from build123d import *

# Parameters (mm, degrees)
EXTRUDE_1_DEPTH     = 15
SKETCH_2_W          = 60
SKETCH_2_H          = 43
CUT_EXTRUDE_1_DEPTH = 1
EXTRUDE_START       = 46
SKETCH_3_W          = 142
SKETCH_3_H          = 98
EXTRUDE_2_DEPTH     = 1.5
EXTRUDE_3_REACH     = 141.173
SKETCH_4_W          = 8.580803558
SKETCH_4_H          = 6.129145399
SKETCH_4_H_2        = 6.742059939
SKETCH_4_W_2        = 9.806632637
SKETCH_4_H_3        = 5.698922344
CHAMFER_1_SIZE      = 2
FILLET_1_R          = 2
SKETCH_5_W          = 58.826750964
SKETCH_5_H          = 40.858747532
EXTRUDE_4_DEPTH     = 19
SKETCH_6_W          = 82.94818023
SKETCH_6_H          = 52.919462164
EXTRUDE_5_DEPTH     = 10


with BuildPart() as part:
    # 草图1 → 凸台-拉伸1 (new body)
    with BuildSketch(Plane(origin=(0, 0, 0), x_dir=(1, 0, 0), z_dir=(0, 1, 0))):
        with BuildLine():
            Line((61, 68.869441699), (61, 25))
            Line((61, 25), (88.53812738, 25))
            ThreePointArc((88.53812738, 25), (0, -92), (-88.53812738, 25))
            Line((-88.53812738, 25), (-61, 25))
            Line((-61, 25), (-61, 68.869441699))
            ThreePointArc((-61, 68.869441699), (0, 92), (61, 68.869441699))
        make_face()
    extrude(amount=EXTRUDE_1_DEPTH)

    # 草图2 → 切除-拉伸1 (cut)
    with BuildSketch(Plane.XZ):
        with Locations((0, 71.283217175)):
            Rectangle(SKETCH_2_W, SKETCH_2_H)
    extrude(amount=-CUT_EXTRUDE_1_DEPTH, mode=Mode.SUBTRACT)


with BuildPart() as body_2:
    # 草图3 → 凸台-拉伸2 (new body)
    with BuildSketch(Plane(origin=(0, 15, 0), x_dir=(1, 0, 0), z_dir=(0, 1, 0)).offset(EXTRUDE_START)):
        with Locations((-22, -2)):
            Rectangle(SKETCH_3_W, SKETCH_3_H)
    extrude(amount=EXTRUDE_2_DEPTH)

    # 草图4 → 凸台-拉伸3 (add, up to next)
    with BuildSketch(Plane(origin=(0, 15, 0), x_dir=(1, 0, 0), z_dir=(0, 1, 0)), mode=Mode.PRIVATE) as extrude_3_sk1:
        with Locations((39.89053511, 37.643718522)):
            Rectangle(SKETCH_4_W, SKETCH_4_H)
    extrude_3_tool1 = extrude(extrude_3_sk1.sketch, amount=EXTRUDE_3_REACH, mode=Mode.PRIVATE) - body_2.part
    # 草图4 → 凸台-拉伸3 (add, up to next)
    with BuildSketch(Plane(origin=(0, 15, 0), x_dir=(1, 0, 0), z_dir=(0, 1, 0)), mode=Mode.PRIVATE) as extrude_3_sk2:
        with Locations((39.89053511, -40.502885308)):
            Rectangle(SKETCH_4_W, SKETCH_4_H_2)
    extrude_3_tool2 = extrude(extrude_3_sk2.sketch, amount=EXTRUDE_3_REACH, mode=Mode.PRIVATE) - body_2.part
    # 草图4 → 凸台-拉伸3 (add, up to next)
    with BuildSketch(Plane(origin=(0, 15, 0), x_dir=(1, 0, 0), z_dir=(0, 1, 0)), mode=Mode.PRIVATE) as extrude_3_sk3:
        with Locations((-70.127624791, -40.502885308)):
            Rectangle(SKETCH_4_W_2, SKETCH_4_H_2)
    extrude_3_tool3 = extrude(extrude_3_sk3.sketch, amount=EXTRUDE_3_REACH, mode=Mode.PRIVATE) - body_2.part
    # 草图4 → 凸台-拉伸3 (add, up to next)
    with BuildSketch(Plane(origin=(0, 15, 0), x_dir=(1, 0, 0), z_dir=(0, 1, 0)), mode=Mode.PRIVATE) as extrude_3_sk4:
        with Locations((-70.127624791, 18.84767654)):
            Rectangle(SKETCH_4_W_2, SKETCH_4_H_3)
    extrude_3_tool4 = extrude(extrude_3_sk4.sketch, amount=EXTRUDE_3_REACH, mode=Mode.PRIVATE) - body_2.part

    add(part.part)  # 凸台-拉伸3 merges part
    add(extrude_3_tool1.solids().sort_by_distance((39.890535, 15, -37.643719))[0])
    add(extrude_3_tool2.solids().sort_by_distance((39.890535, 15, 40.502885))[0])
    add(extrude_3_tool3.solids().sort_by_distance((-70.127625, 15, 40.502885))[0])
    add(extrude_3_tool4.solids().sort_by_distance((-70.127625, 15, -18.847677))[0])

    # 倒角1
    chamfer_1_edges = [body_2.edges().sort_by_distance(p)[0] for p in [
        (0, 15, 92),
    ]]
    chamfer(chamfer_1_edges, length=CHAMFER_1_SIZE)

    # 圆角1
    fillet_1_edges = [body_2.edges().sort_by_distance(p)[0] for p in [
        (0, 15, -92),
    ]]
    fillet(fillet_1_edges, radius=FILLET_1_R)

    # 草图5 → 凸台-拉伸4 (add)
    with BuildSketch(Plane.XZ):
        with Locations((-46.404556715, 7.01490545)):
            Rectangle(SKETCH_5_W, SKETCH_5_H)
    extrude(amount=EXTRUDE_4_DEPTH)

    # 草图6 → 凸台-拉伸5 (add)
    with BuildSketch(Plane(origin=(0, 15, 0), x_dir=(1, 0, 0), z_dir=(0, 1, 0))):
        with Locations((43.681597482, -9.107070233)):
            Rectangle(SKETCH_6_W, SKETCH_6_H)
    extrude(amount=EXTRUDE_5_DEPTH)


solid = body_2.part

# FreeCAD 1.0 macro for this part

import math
import FreeCAD as App
import Part
import Sketcher
from FreeCAD import Vector
Q = App.Units.Quantity


def edges_at(feature, points):
    """Names of the edges that pass closest to the given points."""
    edges = feature.Shape.Edges
    near = lambda p: min(range(len(edges)), key=lambda i: edges[i].distToShape(Part.Vertex(*p))[0])
    return sorted({f"Edge{near(p) + 1}" for p in points})

doc = App.newDocument("Part")
params = doc.addObject("Spreadsheet::Sheet", "Params")
for row, (alias, value) in enumerate([
    ("sketch1_radius", "92 mm"),
    ("pad1_length", "15 mm"),
    ("sketch2_width", "60 mm"),
    ("sketch2_height", "43 mm"),
    ("pocket1_length", "1 mm"),
    ("sketch3_width", "142 mm"),
    ("sketch3_height", "98 mm"),
    ("pad2_length", "1.5 mm"),
    ("chamfer_size", "2 mm"),
    ("fillet_radius", "2 mm"),
    ("pad7_length", "19 mm"),
    ("pad8_length", "10 mm"),
], start=1):
    params.set(f"A{row}", alias)
    params.set(f"B{row}", "=" + value)
    params.setAlias(f"B{row}", alias)

body = doc.addObject("PartDesign::Body", "Body")

# Sketch on XZ plane
sketch1 = doc.addObject("Sketcher::SketchObject", "Sketch")
body.addObject(sketch1)
sketch1.AttachmentSupport = (doc.XZ_Plane, [""])
sketch1.MapMode = "FlatFace"
sketch1.addGeometry([
    Part.LineSegment(Vector(61, -25, 0), Vector(61, -69, 0)),  # 0
    Part.ArcOfCircle(Part.Circle(Vector(0, 0, 0), Vector(0, 0, 1), 92), math.radians(-132), math.radians(-48)),  # 1
    Part.LineSegment(Vector(-61, -69, 0), Vector(-61, -25, 0)),  # 2
    Part.LineSegment(Vector(-61, -25, 0), Vector(-89, -25, 0)),  # 3
    Part.ArcOfCircle(Part.Circle(Vector(0, 0, 0), Vector(0, 0, 1), 92), math.radians(-16), math.radians(196)),  # 4
    Part.LineSegment(Vector(89, -25, 0), Vector(61, -25, 0)),  # 5
], False)
sketch1.addConstraint([
    Sketcher.Constraint("Coincident", 0, 2, 1, 2),
    Sketcher.Constraint("Coincident", 1, 1, 2, 1),
    Sketcher.Constraint("Coincident", 2, 2, 3, 1),
    Sketcher.Constraint("Coincident", 3, 2, 4, 2),
    Sketcher.Constraint("Coincident", 4, 1, 5, 1),
    Sketcher.Constraint("Coincident", 5, 2, 0, 1),
    Sketcher.Constraint("Vertical", 0),
    Sketcher.Constraint("Vertical", 2),
    Sketcher.Constraint("Horizontal", 3),
    Sketcher.Constraint("Horizontal", 5),
    Sketcher.Constraint("Coincident", 1, 3, -1, 1),
    Sketcher.Constraint("Coincident", 4, 3, -1, 1),
    Sketcher.Constraint("Equal", 1, 4),
    Sketcher.Constraint("Symmetric", 2, 2, 5, 2, -2),
    Sketcher.Constraint("Radius", 1, Q("92 mm")),
    Sketcher.Constraint("DistanceX", -1, 1, 0, 2, Q("61 mm")),
    Sketcher.Constraint("DistanceY", 2, 2, -1, 1, Q("25 mm")),
])
sketch1.setExpression("Constraints[14]", "Params.sketch1_radius")
pad1 = doc.addObject("PartDesign::Pad", "Pad")
body.addObject(pad1)
pad1.Profile = sketch1
pad1.setExpression("Length", "Params.pad1_length")
pad1.Reversed = True

# Sketch on XZ plane
sketch2 = doc.addObject("Sketcher::SketchObject", "Sketch001")
body.addObject(sketch2)
sketch2.AttachmentSupport = (doc.XZ_Plane, [""])
sketch2.MapMode = "FlatFace"
sketch2.addGeometry([
    Part.LineSegment(Vector(-30, 93, 0), Vector(-30, 50, 0)),
    Part.LineSegment(Vector(-30, 50, 0), Vector(30, 50, 0)),
    Part.LineSegment(Vector(30, 50, 0), Vector(30, 93, 0)),
    Part.LineSegment(Vector(30, 93, 0), Vector(-30, 93, 0)),
], False)
sketch2.addConstraint([
    Sketcher.Constraint("Coincident", 0, 2, 1, 1),
    Sketcher.Constraint("Coincident", 1, 2, 2, 1),
    Sketcher.Constraint("Coincident", 2, 2, 3, 1),
    Sketcher.Constraint("Coincident", 3, 2, 0, 1),
    Sketcher.Constraint("Vertical", 0),
    Sketcher.Constraint("Horizontal", 1),
    Sketcher.Constraint("Vertical", 2),
    Sketcher.Constraint("Horizontal", 3),
    Sketcher.Constraint("DistanceX", 1, 1, 1, 2, Q("60 mm")),
    Sketcher.Constraint("DistanceY", 0, 2, 0, 1, Q("43 mm")),
    Sketcher.Constraint("DistanceX", 0, 2, -1, 1, Q("30 mm")),
    Sketcher.Constraint("DistanceY", -1, 1, 0, 2, Q("49.783217 mm")),
])
sketch2.setExpression("Constraints[8]", "Params.sketch2_width")
sketch2.setExpression("Constraints[9]", "Params.sketch2_height")
pocket1 = doc.addObject("PartDesign::Pocket", "Pocket")
body.addObject(pocket1)
pocket1.Profile = sketch2
pocket1.setExpression("Length", "Params.pocket1_length")
body2 = doc.addObject("PartDesign::Body", "Body001")
body2.AllowCompound = True

# Sketch on XZ plane
sketch3 = doc.addObject("Sketcher::SketchObject", "Sketch002")
body2.addObject(sketch3)
sketch3.AttachmentSupport = (doc.getObject("XZ_Plane001"), [""])
sketch3.MapMode = "FlatFace"
sketch3.AttachmentOffset = App.Placement(Vector(0, 0, -61), App.Rotation())
sketch3.addGeometry([
    Part.LineSegment(Vector(-93, -47, 0), Vector(-93, 51, 0)),
    Part.LineSegment(Vector(-93, 51, 0), Vector(49, 51, 0)),
    Part.LineSegment(Vector(49, 51, 0), Vector(49, -47, 0)),
    Part.LineSegment(Vector(49, -47, 0), Vector(-93, -47, 0)),
], False)
sketch3.addConstraint([
    Sketcher.Constraint("Coincident", 0, 2, 1, 1),
    Sketcher.Constraint("Coincident", 1, 2, 2, 1),
    Sketcher.Constraint("Coincident", 2, 2, 3, 1),
    Sketcher.Constraint("Coincident", 3, 2, 0, 1),
    Sketcher.Constraint("Vertical", 0),
    Sketcher.Constraint("Horizontal", 1),
    Sketcher.Constraint("Vertical", 2),
    Sketcher.Constraint("Horizontal", 3),
    Sketcher.Constraint("DistanceX", 1, 1, 1, 2, Q("142 mm")),
    Sketcher.Constraint("DistanceY", 0, 1, 0, 2, Q("98 mm")),
    Sketcher.Constraint("DistanceX", 0, 2, -1, 1, Q("93 mm")),
    Sketcher.Constraint("DistanceY", -1, 1, 0, 2, Q("51 mm")),
])
sketch3.setExpression("Constraints[8]", "Params.sketch3_width")
sketch3.setExpression("Constraints[9]", "Params.sketch3_height")
pad2 = doc.addObject("PartDesign::Pad", "Pad001")
body2.addObject(pad2)
pad2.Profile = sketch3
pad2.setExpression("Length", "Params.pad2_length")
pad2.Reversed = True
doc.recompute()

boolean = doc.addObject("PartDesign::Boolean", "Boolean")
body2.addObject(boolean)
boolean.Type = "Fuse"
boolean.addObjects([body])

# Sketch on XZ plane
sketch4 = doc.addObject("Sketcher::SketchObject", "Sketch003")
body2.addObject(sketch4)
sketch4.AttachmentSupport = (doc.getObject("XZ_Plane001"), [""])
sketch4.MapMode = "FlatFace"
sketch4.AttachmentOffset = App.Placement(Vector(0, 0, -15), App.Rotation())
sketch4.addGeometry([
    Part.LineSegment(Vector(36, -41, 0), Vector(36, -35, 0)),
    Part.LineSegment(Vector(36, -35, 0), Vector(44, -35, 0)),
    Part.LineSegment(Vector(44, -35, 0), Vector(44, -41, 0)),
    Part.LineSegment(Vector(44, -41, 0), Vector(36, -41, 0)),
], False)
sketch4.addConstraint([
    Sketcher.Constraint("Coincident", 0, 2, 1, 1),
    Sketcher.Constraint("Coincident", 1, 2, 2, 1),
    Sketcher.Constraint("Coincident", 2, 2, 3, 1),
    Sketcher.Constraint("Coincident", 3, 2, 0, 1),
    Sketcher.Constraint("Vertical", 0),
    Sketcher.Constraint("Horizontal", 1),
    Sketcher.Constraint("Vertical", 2),
    Sketcher.Constraint("Horizontal", 3),
    Sketcher.Constraint("DistanceX", 1, 1, 1, 2, Q("8.580804 mm")),
    Sketcher.Constraint("DistanceY", 0, 1, 0, 2, Q("6.129145 mm")),
    Sketcher.Constraint("DistanceY", 2, 2, -1, 1, Q("40.708291 mm")),
    Sketcher.Constraint("DistanceX", -1, 1, 0, 2, Q("35.600133 mm")),
])
pad3 = doc.addObject("PartDesign::Pad", "Pad002")
body2.addObject(pad3)
pad3.Profile = sketch4
pad3.Type = "UpToFirst"
pad3.Reversed = True

# Sketch on XZ plane
sketch5 = doc.addObject("Sketcher::SketchObject", "Sketch004")
body2.addObject(sketch5)
sketch5.AttachmentSupport = (doc.getObject("XZ_Plane001"), [""])
sketch5.MapMode = "FlatFace"
sketch5.AttachmentOffset = App.Placement(Vector(0, 0, -15), App.Rotation())
sketch5.addGeometry([
    Part.LineSegment(Vector(36, 37, 0), Vector(36, 44, 0)),
    Part.LineSegment(Vector(36, 44, 0), Vector(44, 44, 0)),
    Part.LineSegment(Vector(44, 44, 0), Vector(44, 37, 0)),
    Part.LineSegment(Vector(44, 37, 0), Vector(36, 37, 0)),
], False)
sketch5.addConstraint([
    Sketcher.Constraint("Coincident", 0, 2, 1, 1),
    Sketcher.Constraint("Coincident", 1, 2, 2, 1),
    Sketcher.Constraint("Coincident", 2, 2, 3, 1),
    Sketcher.Constraint("Coincident", 3, 2, 0, 1),
    Sketcher.Constraint("Vertical", 0),
    Sketcher.Constraint("Horizontal", 1),
    Sketcher.Constraint("Vertical", 2),
    Sketcher.Constraint("Horizontal", 3),
    Sketcher.Constraint("DistanceY", 0, 1, 0, 2, Q("6.74206 mm")),
    Sketcher.Constraint("DistanceX", 1, 1, 1, 2, Q("8.580804 mm")),
    Sketcher.Constraint("DistanceX", -1, 1, 0, 2, Q("35.600133 mm")),
    Sketcher.Constraint("DistanceY", -1, 1, 0, 2, Q("43.873915 mm")),
])
pad4 = doc.addObject("PartDesign::Pad", "Pad003")
body2.addObject(pad4)
pad4.Profile = sketch5
pad4.Type = "UpToFirst"
pad4.Reversed = True

# Sketch on XZ plane
sketch6 = doc.addObject("Sketcher::SketchObject", "Sketch005")
body2.addObject(sketch6)
sketch6.AttachmentSupport = (doc.getObject("XZ_Plane001"), [""])
sketch6.MapMode = "FlatFace"
sketch6.AttachmentOffset = App.Placement(Vector(0, 0, -15), App.Rotation())
sketch6.addGeometry([
    Part.LineSegment(Vector(-75, 37, 0), Vector(-75, 44, 0)),
    Part.LineSegment(Vector(-75, 44, 0), Vector(-65, 44, 0)),
    Part.LineSegment(Vector(-65, 44, 0), Vector(-65, 37, 0)),
    Part.LineSegment(Vector(-65, 37, 0), Vector(-75, 37, 0)),
], False)
sketch6.addConstraint([
    Sketcher.Constraint("Coincident", 0, 2, 1, 1),
    Sketcher.Constraint("Coincident", 1, 2, 2, 1),
    Sketcher.Constraint("Coincident", 2, 2, 3, 1),
    Sketcher.Constraint("Coincident", 3, 2, 0, 1),
    Sketcher.Constraint("Vertical", 0),
    Sketcher.Constraint("Horizontal", 1),
    Sketcher.Constraint("Vertical", 2),
    Sketcher.Constraint("Horizontal", 3),
    Sketcher.Constraint("DistanceY", 0, 1, 0, 2, Q("6.74206 mm")),
    Sketcher.Constraint("DistanceX", 1, 1, 1, 2, Q("9.806633 mm")),
    Sketcher.Constraint("DistanceX", 0, 2, -1, 1, Q("75.030941 mm")),
    Sketcher.Constraint("DistanceY", -1, 1, 0, 2, Q("43.873915 mm")),
])
pad5 = doc.addObject("PartDesign::Pad", "Pad004")
body2.addObject(pad5)
pad5.Profile = sketch6
pad5.Type = "UpToFirst"
pad5.Reversed = True

# Sketch on XZ plane
sketch7 = doc.addObject("Sketcher::SketchObject", "Sketch006")
body2.addObject(sketch7)
sketch7.AttachmentSupport = (doc.getObject("XZ_Plane001"), [""])
sketch7.MapMode = "FlatFace"
sketch7.AttachmentOffset = App.Placement(Vector(0, 0, -15), App.Rotation())
sketch7.addGeometry([
    Part.LineSegment(Vector(-75, -22, 0), Vector(-75, -16, 0)),
    Part.LineSegment(Vector(-75, -16, 0), Vector(-65, -16, 0)),
    Part.LineSegment(Vector(-65, -16, 0), Vector(-65, -22, 0)),
    Part.LineSegment(Vector(-65, -22, 0), Vector(-75, -22, 0)),
], False)
sketch7.addConstraint([
    Sketcher.Constraint("Coincident", 0, 2, 1, 1),
    Sketcher.Constraint("Coincident", 1, 2, 2, 1),
    Sketcher.Constraint("Coincident", 2, 2, 3, 1),
    Sketcher.Constraint("Coincident", 3, 2, 0, 1),
    Sketcher.Constraint("Vertical", 0),
    Sketcher.Constraint("Horizontal", 1),
    Sketcher.Constraint("Vertical", 2),
    Sketcher.Constraint("Horizontal", 3),
    Sketcher.Constraint("DistanceX", 1, 1, 1, 2, Q("9.806633 mm")),
    Sketcher.Constraint("DistanceY", 0, 1, 0, 2, Q("5.698922 mm")),
    Sketcher.Constraint("DistanceX", 0, 2, -1, 1, Q("75.030941 mm")),
    Sketcher.Constraint("DistanceY", 0, 2, -1, 1, Q("15.998215 mm")),
])
pad6 = doc.addObject("PartDesign::Pad", "Pad005")
body2.addObject(pad6)
pad6.Profile = sketch7
pad6.Type = "UpToFirst"
pad6.Reversed = True
doc.recompute()

chamfer = doc.addObject("PartDesign::Chamfer", "Chamfer")
body2.addObject(chamfer)
chamfer.Base = (pad6, edges_at(pad6, [(0, 15, 92)]))
chamfer.setExpression("Size", "Params.chamfer_size")
doc.recompute()

fillet = doc.addObject("PartDesign::Fillet", "Fillet")
body2.addObject(fillet)
fillet.Base = (chamfer, edges_at(chamfer, [(0, 15, -92)]))
fillet.setExpression("Radius", "Params.fillet_radius")

# Sketch on XZ plane
sketch8 = doc.addObject("Sketcher::SketchObject", "Sketch007")
body2.addObject(sketch8)
sketch8.AttachmentSupport = (doc.getObject("XZ_Plane001"), [""])
sketch8.MapMode = "FlatFace"
sketch8.addGeometry([
    Part.LineSegment(Vector(-76, 27, 0), Vector(-76, -13, 0)),
    Part.LineSegment(Vector(-76, -13, 0), Vector(-17, -13, 0)),
    Part.LineSegment(Vector(-17, -13, 0), Vector(-17, 27, 0)),
    Part.LineSegment(Vector(-17, 27, 0), Vector(-76, 27, 0)),
], False)
sketch8.addConstraint([
    Sketcher.Constraint("Coincident", 0, 2, 1, 1),
    Sketcher.Constraint("Coincident", 1, 2, 2, 1),
    Sketcher.Constraint("Coincident", 2, 2, 3, 1),
    Sketcher.Constraint("Coincident", 3, 2, 0, 1),
    Sketcher.Constraint("Vertical", 0),
    Sketcher.Constraint("Horizontal", 1),
    Sketcher.Constraint("Vertical", 2),
    Sketcher.Constraint("Horizontal", 3),
    Sketcher.Constraint("DistanceX", 1, 1, 1, 2, Q("58.826751 mm")),
    Sketcher.Constraint("DistanceY", 0, 2, 0, 1, Q("40.858748 mm")),
    Sketcher.Constraint("DistanceY", 0, 2, -1, 1, Q("13.414468 mm")),
    Sketcher.Constraint("DistanceX", 1, 2, -1, 1, Q("16.991181 mm")),
])
pad7 = doc.addObject("PartDesign::Pad", "Pad006")
body2.addObject(pad7)
pad7.Profile = sketch8
pad7.setExpression("Length", "Params.pad7_length")

# Sketch on XZ plane
sketch9 = doc.addObject("Sketcher::SketchObject", "Sketch008")
body2.addObject(sketch9)
sketch9.AttachmentSupport = (doc.getObject("XZ_Plane001"), [""])
sketch9.MapMode = "FlatFace"
sketch9.AttachmentOffset = App.Placement(Vector(0, 0, -15), App.Rotation())
sketch9.addGeometry([
    Part.LineSegment(Vector(2, -17, 0), Vector(2, 36, 0)),
    Part.LineSegment(Vector(2, 36, 0), Vector(85, 36, 0)),
    Part.LineSegment(Vector(85, 36, 0), Vector(85, -17, 0)),
    Part.LineSegment(Vector(85, -17, 0), Vector(2, -17, 0)),
], False)
sketch9.addConstraint([
    Sketcher.Constraint("Coincident", 0, 2, 1, 1),
    Sketcher.Constraint("Coincident", 1, 2, 2, 1),
    Sketcher.Constraint("Coincident", 2, 2, 3, 1),
    Sketcher.Constraint("Coincident", 3, 2, 0, 1),
    Sketcher.Constraint("Vertical", 0),
    Sketcher.Constraint("Horizontal", 1),
    Sketcher.Constraint("Vertical", 2),
    Sketcher.Constraint("Horizontal", 3),
    Sketcher.Constraint("DistanceX", 1, 1, 1, 2, Q("82.94818 mm")),
    Sketcher.Constraint("DistanceY", -1, 1, 0, 2, Q("35.566801 mm")),
    Sketcher.Constraint("DistanceY", 0, 1, 0, 2, Q("52.919462 mm")),
    Sketcher.Constraint("DistanceX", -1, 1, 0, 2, Q("2.207507 mm")),
])
pad8 = doc.addObject("PartDesign::Pad", "Pad007")
body2.addObject(pad8)
pad8.Profile = sketch9
pad8.setExpression("Length", "Params.pad8_length")
pad8.Reversed = True

doc.recompute()
